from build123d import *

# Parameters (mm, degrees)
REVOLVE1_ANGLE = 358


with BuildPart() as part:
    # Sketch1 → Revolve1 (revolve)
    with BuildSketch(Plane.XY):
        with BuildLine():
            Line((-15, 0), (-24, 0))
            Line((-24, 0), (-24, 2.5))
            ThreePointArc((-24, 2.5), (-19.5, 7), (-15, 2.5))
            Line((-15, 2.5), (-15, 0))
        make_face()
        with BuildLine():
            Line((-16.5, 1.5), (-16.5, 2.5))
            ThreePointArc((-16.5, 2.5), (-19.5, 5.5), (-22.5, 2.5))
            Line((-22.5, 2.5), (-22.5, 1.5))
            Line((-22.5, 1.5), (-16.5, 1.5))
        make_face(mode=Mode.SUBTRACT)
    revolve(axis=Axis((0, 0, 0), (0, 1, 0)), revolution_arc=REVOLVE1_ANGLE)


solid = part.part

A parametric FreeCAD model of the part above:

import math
import FreeCAD as App
import Part
import Sketcher

V = App.Vector
Q = App.Units.Quantity

doc = App.newDocument("Part")
body = doc.addObject("PartDesign::Body", "Body")

# Sketch on XY plane
sketch1 = body.newObject("Sketcher::SketchObject", "Sketch")
sketch1.AttachmentSupport = (doc.getObject("XY_Plane"), [""])
sketch1.MapMode = "FlatFace"
sketch1.addGeometry([
    Part.LineSegment(V(-24, 0, 0), V(-15, 0, 0)),  # 0
    Part.LineSegment(V(-15, 0, 0), V(-15, 2.5, 0)),  # 1
    Part.ArcOfCircle(Part.Circle(V(-19.5, 2.5, 0), V(0, 0, 1), 4.5), math.radians(0), math.radians(180)),  # 2
    Part.LineSegment(V(-24, 2.5, 0), V(-24, 0, 0)),  # 3
    Part.LineSegment(V(-16.5, 1.5, 0), V(-22.5, 1.5, 0)),  # 4
    Part.LineSegment(V(-22.5, 1.5, 0), V(-22.5, 2.5, 0)),  # 5
    Part.ArcOfCircle(Part.Circle(V(-19.5, 2.5, 0), V(0, 0, 1), 3), math.radians(0), math.radians(180)),  # 6
    Part.LineSegment(V(-16.5, 2.5, 0), V(-16.5, 1.5, 0)),  # 7
], False)
sketch1.addConstraint([
    Sketcher.Constraint("Coincident", 0, 2, 1, 1),
    Sketcher.Constraint("Tangent", 1, 2, 2, 1),
    Sketcher.Constraint("Tangent", 2, 2, 3, 1),
    Sketcher.Constraint("Coincident", 3, 2, 0, 1),
    Sketcher.Constraint("Coincident", 4, 2, 5, 1),
    Sketcher.Constraint("Tangent", 5, 2, 6, 2),
    Sketcher.Constraint("Tangent", 6, 1, 7, 1),
    Sketcher.Constraint("Coincident", 7, 2, 4, 1),
    Sketcher.Constraint("Horizontal", 0),
    Sketcher.Constraint("Vertical", 1),
    Sketcher.Constraint("Vertical", 3),
    Sketcher.Constraint("Horizontal", 4),
    Sketcher.Constraint("Vertical", 5),
    Sketcher.Constraint("Vertical", 7),
    Sketcher.Constraint("Coincident", 6, 3, 2, 3),
    Sketcher.Constraint("PointOnObject", 0, 2, -1),
    Sketcher.Constraint("Radius", 6, Q("3 mm")),
    Sketcher.Constraint("Radius", 2, Q("4.5 mm")),
    Sketcher.Constraint("DistanceY", 5, 1, 5, 2, Q("1 mm")),
    Sketcher.Constraint("DistanceY", 1, 1, 1, 2, Q("2.5 mm")),
    Sketcher.Constraint("DistanceX", 0, 2, -1, 1, Q("15 mm")),
])
revolution = body.newObject("PartDesign::Revolution", "Revolution")
revolution.Profile = sketch1
revolution.ReferenceAxis = (sketch1, ["V_Axis"])
revolution.Angle = 358

doc.recompute()
